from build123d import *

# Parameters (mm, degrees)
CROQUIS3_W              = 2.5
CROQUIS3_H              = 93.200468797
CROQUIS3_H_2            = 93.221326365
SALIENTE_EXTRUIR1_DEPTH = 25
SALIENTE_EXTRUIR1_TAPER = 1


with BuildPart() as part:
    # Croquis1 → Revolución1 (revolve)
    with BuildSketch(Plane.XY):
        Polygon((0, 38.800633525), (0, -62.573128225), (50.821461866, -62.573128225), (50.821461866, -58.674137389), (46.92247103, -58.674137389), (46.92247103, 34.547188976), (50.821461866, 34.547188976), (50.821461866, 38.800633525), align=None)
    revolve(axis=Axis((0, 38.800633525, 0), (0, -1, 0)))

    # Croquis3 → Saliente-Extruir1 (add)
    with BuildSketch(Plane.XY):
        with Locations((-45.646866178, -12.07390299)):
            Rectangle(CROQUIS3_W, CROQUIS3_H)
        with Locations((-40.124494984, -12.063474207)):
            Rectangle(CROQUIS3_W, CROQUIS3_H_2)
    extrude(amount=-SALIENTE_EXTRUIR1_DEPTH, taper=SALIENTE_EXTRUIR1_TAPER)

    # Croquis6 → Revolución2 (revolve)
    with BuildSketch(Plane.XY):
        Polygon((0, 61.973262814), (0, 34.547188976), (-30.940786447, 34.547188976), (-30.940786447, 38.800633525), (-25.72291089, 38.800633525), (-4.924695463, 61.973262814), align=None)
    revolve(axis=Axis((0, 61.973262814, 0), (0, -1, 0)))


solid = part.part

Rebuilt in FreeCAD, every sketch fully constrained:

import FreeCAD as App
import Part
import Sketcher

V = App.Vector


def add_polygon(sketch, points):
    """Adds a closed chain of lines whose ends are joined by coincident constraints."""
    first, n = sketch.GeometryCount, len(points)
    for a, b in zip(points, points[1:] + points[:1]):
        sketch.addGeometry(Part.LineSegment(App.Vector(*a, 0), App.Vector(*b, 0)), False)
    for i in range(n):
        sketch.addConstraint(Sketcher.Constraint("Coincident", first + i, 2, first + (i + 1) % n, 1))

doc = App.newDocument("Part")
body = doc.addObject("PartDesign::Body", "Body")

# Sketch on XY plane
sketch1 = body.newObject("Sketcher::SketchObject", "Sketch")
sketch1.AttachmentSupport = (doc.getObject("XY_Plane"), [""])
sketch1.MapMode = "FlatFace"
add_polygon(sketch1, [(0, 38.8), (0, -62.6), (50.8, -62.6), (50.8, -58.7), (46.9, -58.7), (46.9, 34.5), (50.8, 34.5), (50.8, 38.8)])  # lines 0-7
sketch1.addConstraint(Sketcher.Constraint("Vertical", 0))
sketch1.addConstraint(Sketcher.Constraint("Horizontal", 1))
sketch1.addConstraint(Sketcher.Constraint("Vertical", 2))
sketch1.addConstraint(Sketcher.Constraint("Horizontal", 3))
sketch1.addConstraint(Sketcher.Constraint("Vertical", 4))
sketch1.addConstraint(Sketcher.Constraint("Horizontal", 5))
sketch1.addConstraint(Sketcher.Constraint("Vertical", 6))
sketch1.addConstraint(Sketcher.Constraint("Horizontal", 7))
sketch1.addConstraint(Sketcher.Constraint("PointOnObject", 0, 2, -2))
sketch1.addConstraint(Sketcher.Constraint("Vertical", 2, 2, 5, 2))
sketch1.addConstraint(Sketcher.Constraint("Equal", 5, 2))
sketch1.addConstraint(Sketcher.Constraint("DistanceX", 1, 1, 1, 2, 50.821462))
sketch1.addConstraint(Sketcher.Constraint("DistanceX", 3, 2, 3, 1, 3.898991))
sketch1.addConstraint(Sketcher.Constraint("DistanceY", 0, 2, 0, 1, 101.373762))
sketch1.addConstraint(Sketcher.Constraint("DistanceY", 4, 1, 4, 2, 93.221326))
sketch1.addConstraint(Sketcher.Constraint("DistanceY", 0, 2, -1, 1, 62.573128))
revolution = body.newObject("PartDesign::Revolution", "Revolution")
revolution.Profile = sketch1
revolution.ReferenceAxis = (sketch1, ["V_Axis"])
revolution.Angle = 360

# Sketch on XY plane
sketch2 = body.newObject("Sketcher::SketchObject", "Sketch001")
sketch2.AttachmentSupport = (doc.getObject("XY_Plane"), [""])
sketch2.MapMode = "FlatFace"
add_polygon(sketch2, [(-46.9, 34.5), (-46.9, -58.7), (-44.4, -58.7), (-44.4, 34.5)])  # lines 0-3
add_polygon(sketch2, [(-41.4, 34.5), (-41.4, -58.7), (-38.9, -58.7), (-38.9, 34.5)])  # lines 4-7
sketch2.addConstraint(Sketcher.Constraint("Vertical", 0))
sketch2.addConstraint(Sketcher.Constraint("Horizontal", 1))
sketch2.addConstraint(Sketcher.Constraint("Vertical", 2))
sketch2.addConstraint(Sketcher.Constraint("Horizontal", 3))
sketch2.addConstraint(Sketcher.Constraint("Vertical", 4))
sketch2.addConstraint(Sketcher.Constraint("Horizontal", 5))
sketch2.addConstraint(Sketcher.Constraint("Vertical", 6))
sketch2.addConstraint(Sketcher.Constraint("Horizontal", 7))
sketch2.addConstraint(Sketcher.Constraint("Horizontal", 1, 2, 4, 2))
sketch2.addConstraint(Sketcher.Constraint("Equal", 3, 5))
sketch2.addConstraint(Sketcher.Constraint("DistanceX", 1, 1, 1, 2, 2.5))
sketch2.addConstraint(Sketcher.Constraint("DistanceY", 0, 2, 0, 1, 93.200469))
sketch2.addConstraint(Sketcher.Constraint("DistanceY", 4, 2, 4, 1, 93.221326))
sketch2.addConstraint(Sketcher.Constraint("DistanceY", -1, 1, 2, 2, 34.526331))
sketch2.addConstraint(Sketcher.Constraint("DistanceX", 1, 2, 4, 2, 3.022371))
sketch2.addConstraint(Sketcher.Constraint("DistanceX", 0, 2, -1, 1, 46.896866))
pad1 = body.newObject("PartDesign::Pad", "Pad")
pad1.Profile = sketch2
pad1.Length = 25
pad1.Reversed = True
pad1.TaperAngle = -1

# Sketch on XY plane
sketch3 = body.newObject("Sketcher::SketchObject", "Sketch002")
sketch3.AttachmentSupport = (doc.getObject("XY_Plane"), [""])
sketch3.MapMode = "FlatFace"
add_polygon(sketch3, [(0, 34.5), (0, 62), (-4.9, 62), (-25.7, 38.8), (-30.9, 38.8), (-30.9, 34.5)])  # lines 0-5
sketch3.addConstraint(Sketcher.Constraint("Vertical", 0))
sketch3.addConstraint(Sketcher.Constraint("Horizontal", 1))
sketch3.addConstraint(Sketcher.Constraint("Horizontal", 3))
sketch3.addConstraint(Sketcher.Constraint("Vertical", 4))
sketch3.addConstraint(Sketcher.Constraint("Horizontal", 5))
sketch3.addConstraint(Sketcher.Constraint("PointOnObject", 0, 2, -2))
sketch3.addConstraint(Sketcher.Constraint("Distance", 2, 31.137381))
sketch3.addConstraint(Sketcher.Constraint("DistanceX", 1, 2, 1, 1, 4.924695))
sketch3.addConstraint(Sketcher.Constraint("DistanceX", 3, 2, 3, 1, 5.217876))
sketch3.addConstraint(Sketcher.Constraint("DistanceX", 5, 1, 5, 2, 30.940786))
sketch3.addConstraint(Sketcher.Constraint("DistanceY", 0, 1, 0, 2, 27.426074))
sketch3.addConstraint(Sketcher.Constraint("DistanceY", -1, 1, 4, 2, 34.547189))
revolution2 = body.newObject("PartDesign::Revolution", "Revolution001")
revolution2.Profile = sketch3
revolution2.ReferenceAxis = (sketch3, ["V_Axis"])
revolution2.Angle = 360

doc.recompute()
